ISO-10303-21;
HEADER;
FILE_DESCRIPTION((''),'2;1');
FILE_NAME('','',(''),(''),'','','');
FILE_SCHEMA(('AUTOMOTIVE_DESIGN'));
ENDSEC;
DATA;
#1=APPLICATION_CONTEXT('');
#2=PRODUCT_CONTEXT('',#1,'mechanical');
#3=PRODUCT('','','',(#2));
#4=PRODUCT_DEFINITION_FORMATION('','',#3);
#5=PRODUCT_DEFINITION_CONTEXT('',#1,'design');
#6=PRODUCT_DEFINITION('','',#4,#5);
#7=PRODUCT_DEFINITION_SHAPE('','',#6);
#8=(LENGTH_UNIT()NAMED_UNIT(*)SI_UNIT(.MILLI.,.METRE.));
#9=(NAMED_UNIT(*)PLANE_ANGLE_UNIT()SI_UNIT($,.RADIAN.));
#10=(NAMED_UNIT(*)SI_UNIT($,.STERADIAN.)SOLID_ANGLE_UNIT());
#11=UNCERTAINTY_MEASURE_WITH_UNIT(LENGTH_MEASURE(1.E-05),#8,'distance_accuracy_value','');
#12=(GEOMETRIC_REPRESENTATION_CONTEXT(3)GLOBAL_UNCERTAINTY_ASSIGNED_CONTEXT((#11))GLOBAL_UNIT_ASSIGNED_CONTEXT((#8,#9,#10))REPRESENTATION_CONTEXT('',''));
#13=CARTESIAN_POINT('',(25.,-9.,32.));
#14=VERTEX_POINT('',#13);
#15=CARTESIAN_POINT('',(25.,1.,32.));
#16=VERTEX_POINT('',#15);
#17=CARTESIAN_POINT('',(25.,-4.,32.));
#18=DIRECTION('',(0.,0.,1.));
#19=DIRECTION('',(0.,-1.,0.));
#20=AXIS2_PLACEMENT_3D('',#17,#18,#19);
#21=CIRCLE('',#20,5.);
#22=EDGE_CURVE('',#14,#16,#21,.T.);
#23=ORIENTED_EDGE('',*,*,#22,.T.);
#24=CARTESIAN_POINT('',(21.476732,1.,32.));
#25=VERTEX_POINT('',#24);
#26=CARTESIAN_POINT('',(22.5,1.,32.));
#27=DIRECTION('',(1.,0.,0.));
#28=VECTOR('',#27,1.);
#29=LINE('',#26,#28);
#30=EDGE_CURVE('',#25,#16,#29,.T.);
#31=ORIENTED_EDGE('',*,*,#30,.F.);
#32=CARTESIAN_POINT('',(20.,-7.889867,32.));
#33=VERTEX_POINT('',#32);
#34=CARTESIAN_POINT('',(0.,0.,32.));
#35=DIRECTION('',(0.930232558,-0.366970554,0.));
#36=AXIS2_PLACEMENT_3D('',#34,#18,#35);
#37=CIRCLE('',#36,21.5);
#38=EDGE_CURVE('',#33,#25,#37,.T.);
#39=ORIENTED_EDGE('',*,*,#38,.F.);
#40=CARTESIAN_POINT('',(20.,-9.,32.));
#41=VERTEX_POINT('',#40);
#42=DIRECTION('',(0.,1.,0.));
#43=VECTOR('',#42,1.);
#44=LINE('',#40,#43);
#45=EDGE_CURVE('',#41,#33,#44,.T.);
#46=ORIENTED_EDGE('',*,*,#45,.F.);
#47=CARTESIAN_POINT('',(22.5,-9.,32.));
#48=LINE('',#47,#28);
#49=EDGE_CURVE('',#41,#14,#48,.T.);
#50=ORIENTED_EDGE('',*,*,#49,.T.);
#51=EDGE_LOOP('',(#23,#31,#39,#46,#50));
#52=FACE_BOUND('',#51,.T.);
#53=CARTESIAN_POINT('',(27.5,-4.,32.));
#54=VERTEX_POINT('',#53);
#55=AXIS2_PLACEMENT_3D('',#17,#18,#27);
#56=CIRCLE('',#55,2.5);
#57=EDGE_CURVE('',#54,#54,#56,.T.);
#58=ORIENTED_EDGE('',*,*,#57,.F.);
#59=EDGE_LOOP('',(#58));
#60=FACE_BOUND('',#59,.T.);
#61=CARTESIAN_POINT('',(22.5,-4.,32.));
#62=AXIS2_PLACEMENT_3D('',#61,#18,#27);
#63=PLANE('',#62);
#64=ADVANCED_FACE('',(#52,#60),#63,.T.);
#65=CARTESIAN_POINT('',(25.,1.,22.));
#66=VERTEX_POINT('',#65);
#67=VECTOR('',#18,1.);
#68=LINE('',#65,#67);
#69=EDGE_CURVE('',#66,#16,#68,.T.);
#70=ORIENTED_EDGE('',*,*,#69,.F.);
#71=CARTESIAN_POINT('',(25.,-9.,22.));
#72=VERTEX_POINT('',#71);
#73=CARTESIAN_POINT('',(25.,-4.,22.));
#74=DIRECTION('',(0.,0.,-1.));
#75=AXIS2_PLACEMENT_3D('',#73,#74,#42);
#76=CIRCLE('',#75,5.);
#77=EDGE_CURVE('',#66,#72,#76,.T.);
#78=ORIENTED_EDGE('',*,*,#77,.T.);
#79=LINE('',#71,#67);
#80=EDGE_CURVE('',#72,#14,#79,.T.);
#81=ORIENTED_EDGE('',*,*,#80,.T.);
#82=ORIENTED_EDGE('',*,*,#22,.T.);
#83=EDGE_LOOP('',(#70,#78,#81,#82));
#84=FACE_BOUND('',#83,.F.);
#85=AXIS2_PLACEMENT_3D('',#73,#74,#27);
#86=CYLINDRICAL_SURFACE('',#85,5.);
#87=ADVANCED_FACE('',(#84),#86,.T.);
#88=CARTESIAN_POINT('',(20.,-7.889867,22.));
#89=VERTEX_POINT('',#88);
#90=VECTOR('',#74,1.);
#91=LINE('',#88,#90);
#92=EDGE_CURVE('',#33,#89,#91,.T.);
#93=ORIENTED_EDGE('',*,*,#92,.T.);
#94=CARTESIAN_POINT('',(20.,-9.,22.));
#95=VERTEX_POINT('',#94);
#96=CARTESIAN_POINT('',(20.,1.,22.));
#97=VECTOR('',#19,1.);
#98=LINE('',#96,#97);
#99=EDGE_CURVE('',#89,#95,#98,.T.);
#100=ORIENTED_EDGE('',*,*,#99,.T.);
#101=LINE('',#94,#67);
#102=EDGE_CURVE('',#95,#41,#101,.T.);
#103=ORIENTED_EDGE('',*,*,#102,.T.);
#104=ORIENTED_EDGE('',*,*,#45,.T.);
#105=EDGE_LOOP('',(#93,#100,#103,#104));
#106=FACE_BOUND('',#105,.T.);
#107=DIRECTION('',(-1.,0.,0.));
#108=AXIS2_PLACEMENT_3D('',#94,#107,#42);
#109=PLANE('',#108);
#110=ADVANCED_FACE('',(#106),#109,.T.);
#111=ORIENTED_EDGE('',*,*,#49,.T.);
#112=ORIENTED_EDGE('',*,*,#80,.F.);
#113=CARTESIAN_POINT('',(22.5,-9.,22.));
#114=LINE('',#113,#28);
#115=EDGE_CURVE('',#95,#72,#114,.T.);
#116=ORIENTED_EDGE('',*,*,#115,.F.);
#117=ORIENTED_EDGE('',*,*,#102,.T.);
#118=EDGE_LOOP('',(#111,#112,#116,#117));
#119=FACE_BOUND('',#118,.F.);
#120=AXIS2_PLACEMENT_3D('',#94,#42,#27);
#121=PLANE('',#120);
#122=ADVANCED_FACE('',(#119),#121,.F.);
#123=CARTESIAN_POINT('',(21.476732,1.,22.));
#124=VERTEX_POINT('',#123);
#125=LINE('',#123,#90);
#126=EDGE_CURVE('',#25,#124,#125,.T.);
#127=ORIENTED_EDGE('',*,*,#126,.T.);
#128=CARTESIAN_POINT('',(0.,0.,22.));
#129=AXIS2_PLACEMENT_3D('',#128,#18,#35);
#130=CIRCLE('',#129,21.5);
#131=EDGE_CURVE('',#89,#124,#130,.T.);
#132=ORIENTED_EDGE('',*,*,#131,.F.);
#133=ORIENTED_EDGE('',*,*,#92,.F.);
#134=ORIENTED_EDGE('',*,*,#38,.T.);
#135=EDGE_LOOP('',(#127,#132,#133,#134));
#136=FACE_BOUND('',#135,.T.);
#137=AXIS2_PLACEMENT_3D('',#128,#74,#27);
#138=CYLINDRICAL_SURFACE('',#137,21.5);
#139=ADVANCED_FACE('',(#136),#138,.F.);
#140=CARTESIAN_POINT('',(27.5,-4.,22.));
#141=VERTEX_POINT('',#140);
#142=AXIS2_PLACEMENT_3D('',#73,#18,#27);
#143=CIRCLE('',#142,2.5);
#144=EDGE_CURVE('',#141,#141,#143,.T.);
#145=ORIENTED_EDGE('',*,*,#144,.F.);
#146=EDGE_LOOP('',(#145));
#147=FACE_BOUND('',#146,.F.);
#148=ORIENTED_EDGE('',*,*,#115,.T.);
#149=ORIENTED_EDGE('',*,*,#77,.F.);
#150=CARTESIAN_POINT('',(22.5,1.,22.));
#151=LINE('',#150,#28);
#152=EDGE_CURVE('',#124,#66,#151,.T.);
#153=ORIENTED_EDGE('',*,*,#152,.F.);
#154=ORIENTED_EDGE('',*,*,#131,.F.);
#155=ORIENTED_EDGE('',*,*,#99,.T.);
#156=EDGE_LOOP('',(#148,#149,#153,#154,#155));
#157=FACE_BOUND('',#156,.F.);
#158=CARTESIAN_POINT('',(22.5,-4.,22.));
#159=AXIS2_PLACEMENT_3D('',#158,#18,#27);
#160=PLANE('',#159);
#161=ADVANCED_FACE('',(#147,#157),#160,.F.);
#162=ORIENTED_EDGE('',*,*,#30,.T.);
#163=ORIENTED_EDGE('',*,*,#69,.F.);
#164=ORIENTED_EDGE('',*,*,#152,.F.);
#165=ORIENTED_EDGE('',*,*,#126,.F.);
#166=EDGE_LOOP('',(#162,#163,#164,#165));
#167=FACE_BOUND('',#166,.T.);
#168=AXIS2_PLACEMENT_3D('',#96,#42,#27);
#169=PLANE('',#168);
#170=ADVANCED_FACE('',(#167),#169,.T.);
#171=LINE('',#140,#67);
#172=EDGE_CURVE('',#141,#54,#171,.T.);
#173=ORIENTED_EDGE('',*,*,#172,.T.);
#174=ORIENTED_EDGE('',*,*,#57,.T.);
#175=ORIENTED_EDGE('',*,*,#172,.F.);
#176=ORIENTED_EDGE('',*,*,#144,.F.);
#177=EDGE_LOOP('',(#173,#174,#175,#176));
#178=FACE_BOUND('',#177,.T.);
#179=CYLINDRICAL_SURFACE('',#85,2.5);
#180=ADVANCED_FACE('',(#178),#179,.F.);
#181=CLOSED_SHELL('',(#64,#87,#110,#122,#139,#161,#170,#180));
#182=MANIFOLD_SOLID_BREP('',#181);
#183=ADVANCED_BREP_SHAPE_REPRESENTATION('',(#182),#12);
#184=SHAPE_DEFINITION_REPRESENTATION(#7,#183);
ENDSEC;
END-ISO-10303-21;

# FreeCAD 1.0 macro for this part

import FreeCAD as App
import Part
import Sketcher

V = App.Vector
Q = App.Units.Quantity

doc = App.newDocument("Part")
body = doc.addObject("PartDesign::Body", "Body")

sketch1 = body.newObject("Sketcher::SketchObject", "Sketch")
sketch1.AttachmentSupport = (doc.getObject("XY_Plane"), [""])
sketch1.MapMode = "FlatFace"
sketch1.addGeometry(Part.Circle(V(25, -4, 0), V(0, 0, 1), 2.5), False)
sketch1.addConstraint([
    Sketcher.Constraint("Diameter", 0, Q("5 mm")),
    Sketcher.Constraint("DistanceX", -1, 1, 0, 3, Q("25 mm")),
    Sketcher.Constraint("DistanceY", 0, 3, -1, 1, Q("4 mm")),
])
pad1 = body.newObject("PartDesign::Pad", "Pad")
pad1.Profile = sketch1
pad1.Length = 10
body2 = doc.addObject("PartDesign::Body", "Body001")
body2.AllowCompound = True

sketch2 = body2.newObject("Sketcher::SketchObject", "Sketch001")
sketch2.AttachmentSupport = (doc.getObject("XY_Plane001"), [""])
sketch2.MapMode = "FlatFace"
sketch2.addGeometry(Part.Circle(V(0, 0, 0), V(0, 0, 1), 21.5), False)
sketch2.addConstraint([
    Sketcher.Constraint("Coincident", 0, 3, -1, 1),
    Sketcher.Constraint("Diameter", 0, Q("43 mm")),
])
pad2 = body2.newObject("PartDesign::Pad", "Pad001")
pad2.Profile = sketch2
pad2.Length = 63
doc.recompute()

boolean = body2.newObject("PartDesign::Boolean", "Boolean")
boolean.Type = "Fuse"
boolean.addObjects([body])
body3 = doc.addObject("PartDesign::Body", "Body002")

sketch3 = body3.newObject("Sketcher::SketchObject", "Sketch002")
sketch3.AttachmentSupport = (doc.getObject("XY_Plane002"), [""])
sketch3.MapMode = "FlatFace"
sketch3.addGeometry([
    Part.LineSegment(V(20, 1, 0), V(20, -9, 0)),
    Part.LineSegment(V(20, -9, 0), V(25, -9, 0)),
    Part.LineSegment(V(25, -9, 0), V(25, 1, 0)),
    Part.LineSegment(V(25, 1, 0), V(20, 1, 0)),
], False)
sketch3.addConstraint([
    Sketcher.Constraint("Coincident", 0, 2, 1, 1),
    Sketcher.Constraint("Coincident", 1, 2, 2, 1),
    Sketcher.Constraint("Coincident", 2, 2, 3, 1),
    Sketcher.Constraint("Coincident", 3, 2, 0, 1),
    Sketcher.Constraint("Vertical", 0),
    Sketcher.Constraint("Horizontal", 1),
    Sketcher.Constraint("Vertical", 2),
    Sketcher.Constraint("Horizontal", 3),
    Sketcher.Constraint("DistanceX", 1, 1, 1, 2, Q("5 mm")),
    Sketcher.Constraint("DistanceY", 0, 2, 0, 1, Q("10 mm")),
    Sketcher.Constraint("DistanceX", -1, 1, 0, 2, Q("20 mm")),
    Sketcher.Constraint("DistanceY", 0, 2, -1, 1, Q("9 mm")),
])
pad3 = body3.newObject("PartDesign::Pad", "Pad002")
pad3.Profile = sketch3
pad3.Length = 10
body4 = doc.addObject("PartDesign::Body", "Body003")

sketch4 = body4.newObject("Sketcher::SketchObject", "Sketch003")
sketch4.AttachmentSupport = (doc.getObject("XY_Plane003"), [""])
sketch4.MapMode = "FlatFace"
sketch4.addGeometry(Part.Circle(V(25, -4, 0), V(0, 0, 1), 5), False)
sketch4.addConstraint([
    Sketcher.Constraint("Diameter", 0, Q("10 mm")),
    Sketcher.Constraint("DistanceX", -1, 1, 0, 3, Q("25 mm")),
    Sketcher.Constraint("DistanceY", 0, 3, -1, 1, Q("4 mm")),
])
pad4 = body4.newObject("PartDesign::Pad", "Pad003")
pad4.Profile = sketch4
pad4.Length = 10
doc.recompute()

boolean2 = body4.newObject("PartDesign::Boolean", "Boolean001")
boolean2.Type = "Fuse"
boolean2.addObjects([body3])
doc.recompute()

boolean3 = body4.newObject("PartDesign::Boolean", "Boolean002")
boolean3.Type = "Cut"
boolean3.addObjects([body2])
body5 = doc.addObject("PartDesign::Body", "Body004")
doc.recompute()

body4.Placement = App.Placement(V(0, 0, 22), App.Rotation(V(0, 0, 1), 0))
boolean4 = body5.newObject("PartDesign::Boolean", "Boolean003")
boolean4.Type = "Fuse"
boolean4.addObjects([body4])

doc.recompute()
